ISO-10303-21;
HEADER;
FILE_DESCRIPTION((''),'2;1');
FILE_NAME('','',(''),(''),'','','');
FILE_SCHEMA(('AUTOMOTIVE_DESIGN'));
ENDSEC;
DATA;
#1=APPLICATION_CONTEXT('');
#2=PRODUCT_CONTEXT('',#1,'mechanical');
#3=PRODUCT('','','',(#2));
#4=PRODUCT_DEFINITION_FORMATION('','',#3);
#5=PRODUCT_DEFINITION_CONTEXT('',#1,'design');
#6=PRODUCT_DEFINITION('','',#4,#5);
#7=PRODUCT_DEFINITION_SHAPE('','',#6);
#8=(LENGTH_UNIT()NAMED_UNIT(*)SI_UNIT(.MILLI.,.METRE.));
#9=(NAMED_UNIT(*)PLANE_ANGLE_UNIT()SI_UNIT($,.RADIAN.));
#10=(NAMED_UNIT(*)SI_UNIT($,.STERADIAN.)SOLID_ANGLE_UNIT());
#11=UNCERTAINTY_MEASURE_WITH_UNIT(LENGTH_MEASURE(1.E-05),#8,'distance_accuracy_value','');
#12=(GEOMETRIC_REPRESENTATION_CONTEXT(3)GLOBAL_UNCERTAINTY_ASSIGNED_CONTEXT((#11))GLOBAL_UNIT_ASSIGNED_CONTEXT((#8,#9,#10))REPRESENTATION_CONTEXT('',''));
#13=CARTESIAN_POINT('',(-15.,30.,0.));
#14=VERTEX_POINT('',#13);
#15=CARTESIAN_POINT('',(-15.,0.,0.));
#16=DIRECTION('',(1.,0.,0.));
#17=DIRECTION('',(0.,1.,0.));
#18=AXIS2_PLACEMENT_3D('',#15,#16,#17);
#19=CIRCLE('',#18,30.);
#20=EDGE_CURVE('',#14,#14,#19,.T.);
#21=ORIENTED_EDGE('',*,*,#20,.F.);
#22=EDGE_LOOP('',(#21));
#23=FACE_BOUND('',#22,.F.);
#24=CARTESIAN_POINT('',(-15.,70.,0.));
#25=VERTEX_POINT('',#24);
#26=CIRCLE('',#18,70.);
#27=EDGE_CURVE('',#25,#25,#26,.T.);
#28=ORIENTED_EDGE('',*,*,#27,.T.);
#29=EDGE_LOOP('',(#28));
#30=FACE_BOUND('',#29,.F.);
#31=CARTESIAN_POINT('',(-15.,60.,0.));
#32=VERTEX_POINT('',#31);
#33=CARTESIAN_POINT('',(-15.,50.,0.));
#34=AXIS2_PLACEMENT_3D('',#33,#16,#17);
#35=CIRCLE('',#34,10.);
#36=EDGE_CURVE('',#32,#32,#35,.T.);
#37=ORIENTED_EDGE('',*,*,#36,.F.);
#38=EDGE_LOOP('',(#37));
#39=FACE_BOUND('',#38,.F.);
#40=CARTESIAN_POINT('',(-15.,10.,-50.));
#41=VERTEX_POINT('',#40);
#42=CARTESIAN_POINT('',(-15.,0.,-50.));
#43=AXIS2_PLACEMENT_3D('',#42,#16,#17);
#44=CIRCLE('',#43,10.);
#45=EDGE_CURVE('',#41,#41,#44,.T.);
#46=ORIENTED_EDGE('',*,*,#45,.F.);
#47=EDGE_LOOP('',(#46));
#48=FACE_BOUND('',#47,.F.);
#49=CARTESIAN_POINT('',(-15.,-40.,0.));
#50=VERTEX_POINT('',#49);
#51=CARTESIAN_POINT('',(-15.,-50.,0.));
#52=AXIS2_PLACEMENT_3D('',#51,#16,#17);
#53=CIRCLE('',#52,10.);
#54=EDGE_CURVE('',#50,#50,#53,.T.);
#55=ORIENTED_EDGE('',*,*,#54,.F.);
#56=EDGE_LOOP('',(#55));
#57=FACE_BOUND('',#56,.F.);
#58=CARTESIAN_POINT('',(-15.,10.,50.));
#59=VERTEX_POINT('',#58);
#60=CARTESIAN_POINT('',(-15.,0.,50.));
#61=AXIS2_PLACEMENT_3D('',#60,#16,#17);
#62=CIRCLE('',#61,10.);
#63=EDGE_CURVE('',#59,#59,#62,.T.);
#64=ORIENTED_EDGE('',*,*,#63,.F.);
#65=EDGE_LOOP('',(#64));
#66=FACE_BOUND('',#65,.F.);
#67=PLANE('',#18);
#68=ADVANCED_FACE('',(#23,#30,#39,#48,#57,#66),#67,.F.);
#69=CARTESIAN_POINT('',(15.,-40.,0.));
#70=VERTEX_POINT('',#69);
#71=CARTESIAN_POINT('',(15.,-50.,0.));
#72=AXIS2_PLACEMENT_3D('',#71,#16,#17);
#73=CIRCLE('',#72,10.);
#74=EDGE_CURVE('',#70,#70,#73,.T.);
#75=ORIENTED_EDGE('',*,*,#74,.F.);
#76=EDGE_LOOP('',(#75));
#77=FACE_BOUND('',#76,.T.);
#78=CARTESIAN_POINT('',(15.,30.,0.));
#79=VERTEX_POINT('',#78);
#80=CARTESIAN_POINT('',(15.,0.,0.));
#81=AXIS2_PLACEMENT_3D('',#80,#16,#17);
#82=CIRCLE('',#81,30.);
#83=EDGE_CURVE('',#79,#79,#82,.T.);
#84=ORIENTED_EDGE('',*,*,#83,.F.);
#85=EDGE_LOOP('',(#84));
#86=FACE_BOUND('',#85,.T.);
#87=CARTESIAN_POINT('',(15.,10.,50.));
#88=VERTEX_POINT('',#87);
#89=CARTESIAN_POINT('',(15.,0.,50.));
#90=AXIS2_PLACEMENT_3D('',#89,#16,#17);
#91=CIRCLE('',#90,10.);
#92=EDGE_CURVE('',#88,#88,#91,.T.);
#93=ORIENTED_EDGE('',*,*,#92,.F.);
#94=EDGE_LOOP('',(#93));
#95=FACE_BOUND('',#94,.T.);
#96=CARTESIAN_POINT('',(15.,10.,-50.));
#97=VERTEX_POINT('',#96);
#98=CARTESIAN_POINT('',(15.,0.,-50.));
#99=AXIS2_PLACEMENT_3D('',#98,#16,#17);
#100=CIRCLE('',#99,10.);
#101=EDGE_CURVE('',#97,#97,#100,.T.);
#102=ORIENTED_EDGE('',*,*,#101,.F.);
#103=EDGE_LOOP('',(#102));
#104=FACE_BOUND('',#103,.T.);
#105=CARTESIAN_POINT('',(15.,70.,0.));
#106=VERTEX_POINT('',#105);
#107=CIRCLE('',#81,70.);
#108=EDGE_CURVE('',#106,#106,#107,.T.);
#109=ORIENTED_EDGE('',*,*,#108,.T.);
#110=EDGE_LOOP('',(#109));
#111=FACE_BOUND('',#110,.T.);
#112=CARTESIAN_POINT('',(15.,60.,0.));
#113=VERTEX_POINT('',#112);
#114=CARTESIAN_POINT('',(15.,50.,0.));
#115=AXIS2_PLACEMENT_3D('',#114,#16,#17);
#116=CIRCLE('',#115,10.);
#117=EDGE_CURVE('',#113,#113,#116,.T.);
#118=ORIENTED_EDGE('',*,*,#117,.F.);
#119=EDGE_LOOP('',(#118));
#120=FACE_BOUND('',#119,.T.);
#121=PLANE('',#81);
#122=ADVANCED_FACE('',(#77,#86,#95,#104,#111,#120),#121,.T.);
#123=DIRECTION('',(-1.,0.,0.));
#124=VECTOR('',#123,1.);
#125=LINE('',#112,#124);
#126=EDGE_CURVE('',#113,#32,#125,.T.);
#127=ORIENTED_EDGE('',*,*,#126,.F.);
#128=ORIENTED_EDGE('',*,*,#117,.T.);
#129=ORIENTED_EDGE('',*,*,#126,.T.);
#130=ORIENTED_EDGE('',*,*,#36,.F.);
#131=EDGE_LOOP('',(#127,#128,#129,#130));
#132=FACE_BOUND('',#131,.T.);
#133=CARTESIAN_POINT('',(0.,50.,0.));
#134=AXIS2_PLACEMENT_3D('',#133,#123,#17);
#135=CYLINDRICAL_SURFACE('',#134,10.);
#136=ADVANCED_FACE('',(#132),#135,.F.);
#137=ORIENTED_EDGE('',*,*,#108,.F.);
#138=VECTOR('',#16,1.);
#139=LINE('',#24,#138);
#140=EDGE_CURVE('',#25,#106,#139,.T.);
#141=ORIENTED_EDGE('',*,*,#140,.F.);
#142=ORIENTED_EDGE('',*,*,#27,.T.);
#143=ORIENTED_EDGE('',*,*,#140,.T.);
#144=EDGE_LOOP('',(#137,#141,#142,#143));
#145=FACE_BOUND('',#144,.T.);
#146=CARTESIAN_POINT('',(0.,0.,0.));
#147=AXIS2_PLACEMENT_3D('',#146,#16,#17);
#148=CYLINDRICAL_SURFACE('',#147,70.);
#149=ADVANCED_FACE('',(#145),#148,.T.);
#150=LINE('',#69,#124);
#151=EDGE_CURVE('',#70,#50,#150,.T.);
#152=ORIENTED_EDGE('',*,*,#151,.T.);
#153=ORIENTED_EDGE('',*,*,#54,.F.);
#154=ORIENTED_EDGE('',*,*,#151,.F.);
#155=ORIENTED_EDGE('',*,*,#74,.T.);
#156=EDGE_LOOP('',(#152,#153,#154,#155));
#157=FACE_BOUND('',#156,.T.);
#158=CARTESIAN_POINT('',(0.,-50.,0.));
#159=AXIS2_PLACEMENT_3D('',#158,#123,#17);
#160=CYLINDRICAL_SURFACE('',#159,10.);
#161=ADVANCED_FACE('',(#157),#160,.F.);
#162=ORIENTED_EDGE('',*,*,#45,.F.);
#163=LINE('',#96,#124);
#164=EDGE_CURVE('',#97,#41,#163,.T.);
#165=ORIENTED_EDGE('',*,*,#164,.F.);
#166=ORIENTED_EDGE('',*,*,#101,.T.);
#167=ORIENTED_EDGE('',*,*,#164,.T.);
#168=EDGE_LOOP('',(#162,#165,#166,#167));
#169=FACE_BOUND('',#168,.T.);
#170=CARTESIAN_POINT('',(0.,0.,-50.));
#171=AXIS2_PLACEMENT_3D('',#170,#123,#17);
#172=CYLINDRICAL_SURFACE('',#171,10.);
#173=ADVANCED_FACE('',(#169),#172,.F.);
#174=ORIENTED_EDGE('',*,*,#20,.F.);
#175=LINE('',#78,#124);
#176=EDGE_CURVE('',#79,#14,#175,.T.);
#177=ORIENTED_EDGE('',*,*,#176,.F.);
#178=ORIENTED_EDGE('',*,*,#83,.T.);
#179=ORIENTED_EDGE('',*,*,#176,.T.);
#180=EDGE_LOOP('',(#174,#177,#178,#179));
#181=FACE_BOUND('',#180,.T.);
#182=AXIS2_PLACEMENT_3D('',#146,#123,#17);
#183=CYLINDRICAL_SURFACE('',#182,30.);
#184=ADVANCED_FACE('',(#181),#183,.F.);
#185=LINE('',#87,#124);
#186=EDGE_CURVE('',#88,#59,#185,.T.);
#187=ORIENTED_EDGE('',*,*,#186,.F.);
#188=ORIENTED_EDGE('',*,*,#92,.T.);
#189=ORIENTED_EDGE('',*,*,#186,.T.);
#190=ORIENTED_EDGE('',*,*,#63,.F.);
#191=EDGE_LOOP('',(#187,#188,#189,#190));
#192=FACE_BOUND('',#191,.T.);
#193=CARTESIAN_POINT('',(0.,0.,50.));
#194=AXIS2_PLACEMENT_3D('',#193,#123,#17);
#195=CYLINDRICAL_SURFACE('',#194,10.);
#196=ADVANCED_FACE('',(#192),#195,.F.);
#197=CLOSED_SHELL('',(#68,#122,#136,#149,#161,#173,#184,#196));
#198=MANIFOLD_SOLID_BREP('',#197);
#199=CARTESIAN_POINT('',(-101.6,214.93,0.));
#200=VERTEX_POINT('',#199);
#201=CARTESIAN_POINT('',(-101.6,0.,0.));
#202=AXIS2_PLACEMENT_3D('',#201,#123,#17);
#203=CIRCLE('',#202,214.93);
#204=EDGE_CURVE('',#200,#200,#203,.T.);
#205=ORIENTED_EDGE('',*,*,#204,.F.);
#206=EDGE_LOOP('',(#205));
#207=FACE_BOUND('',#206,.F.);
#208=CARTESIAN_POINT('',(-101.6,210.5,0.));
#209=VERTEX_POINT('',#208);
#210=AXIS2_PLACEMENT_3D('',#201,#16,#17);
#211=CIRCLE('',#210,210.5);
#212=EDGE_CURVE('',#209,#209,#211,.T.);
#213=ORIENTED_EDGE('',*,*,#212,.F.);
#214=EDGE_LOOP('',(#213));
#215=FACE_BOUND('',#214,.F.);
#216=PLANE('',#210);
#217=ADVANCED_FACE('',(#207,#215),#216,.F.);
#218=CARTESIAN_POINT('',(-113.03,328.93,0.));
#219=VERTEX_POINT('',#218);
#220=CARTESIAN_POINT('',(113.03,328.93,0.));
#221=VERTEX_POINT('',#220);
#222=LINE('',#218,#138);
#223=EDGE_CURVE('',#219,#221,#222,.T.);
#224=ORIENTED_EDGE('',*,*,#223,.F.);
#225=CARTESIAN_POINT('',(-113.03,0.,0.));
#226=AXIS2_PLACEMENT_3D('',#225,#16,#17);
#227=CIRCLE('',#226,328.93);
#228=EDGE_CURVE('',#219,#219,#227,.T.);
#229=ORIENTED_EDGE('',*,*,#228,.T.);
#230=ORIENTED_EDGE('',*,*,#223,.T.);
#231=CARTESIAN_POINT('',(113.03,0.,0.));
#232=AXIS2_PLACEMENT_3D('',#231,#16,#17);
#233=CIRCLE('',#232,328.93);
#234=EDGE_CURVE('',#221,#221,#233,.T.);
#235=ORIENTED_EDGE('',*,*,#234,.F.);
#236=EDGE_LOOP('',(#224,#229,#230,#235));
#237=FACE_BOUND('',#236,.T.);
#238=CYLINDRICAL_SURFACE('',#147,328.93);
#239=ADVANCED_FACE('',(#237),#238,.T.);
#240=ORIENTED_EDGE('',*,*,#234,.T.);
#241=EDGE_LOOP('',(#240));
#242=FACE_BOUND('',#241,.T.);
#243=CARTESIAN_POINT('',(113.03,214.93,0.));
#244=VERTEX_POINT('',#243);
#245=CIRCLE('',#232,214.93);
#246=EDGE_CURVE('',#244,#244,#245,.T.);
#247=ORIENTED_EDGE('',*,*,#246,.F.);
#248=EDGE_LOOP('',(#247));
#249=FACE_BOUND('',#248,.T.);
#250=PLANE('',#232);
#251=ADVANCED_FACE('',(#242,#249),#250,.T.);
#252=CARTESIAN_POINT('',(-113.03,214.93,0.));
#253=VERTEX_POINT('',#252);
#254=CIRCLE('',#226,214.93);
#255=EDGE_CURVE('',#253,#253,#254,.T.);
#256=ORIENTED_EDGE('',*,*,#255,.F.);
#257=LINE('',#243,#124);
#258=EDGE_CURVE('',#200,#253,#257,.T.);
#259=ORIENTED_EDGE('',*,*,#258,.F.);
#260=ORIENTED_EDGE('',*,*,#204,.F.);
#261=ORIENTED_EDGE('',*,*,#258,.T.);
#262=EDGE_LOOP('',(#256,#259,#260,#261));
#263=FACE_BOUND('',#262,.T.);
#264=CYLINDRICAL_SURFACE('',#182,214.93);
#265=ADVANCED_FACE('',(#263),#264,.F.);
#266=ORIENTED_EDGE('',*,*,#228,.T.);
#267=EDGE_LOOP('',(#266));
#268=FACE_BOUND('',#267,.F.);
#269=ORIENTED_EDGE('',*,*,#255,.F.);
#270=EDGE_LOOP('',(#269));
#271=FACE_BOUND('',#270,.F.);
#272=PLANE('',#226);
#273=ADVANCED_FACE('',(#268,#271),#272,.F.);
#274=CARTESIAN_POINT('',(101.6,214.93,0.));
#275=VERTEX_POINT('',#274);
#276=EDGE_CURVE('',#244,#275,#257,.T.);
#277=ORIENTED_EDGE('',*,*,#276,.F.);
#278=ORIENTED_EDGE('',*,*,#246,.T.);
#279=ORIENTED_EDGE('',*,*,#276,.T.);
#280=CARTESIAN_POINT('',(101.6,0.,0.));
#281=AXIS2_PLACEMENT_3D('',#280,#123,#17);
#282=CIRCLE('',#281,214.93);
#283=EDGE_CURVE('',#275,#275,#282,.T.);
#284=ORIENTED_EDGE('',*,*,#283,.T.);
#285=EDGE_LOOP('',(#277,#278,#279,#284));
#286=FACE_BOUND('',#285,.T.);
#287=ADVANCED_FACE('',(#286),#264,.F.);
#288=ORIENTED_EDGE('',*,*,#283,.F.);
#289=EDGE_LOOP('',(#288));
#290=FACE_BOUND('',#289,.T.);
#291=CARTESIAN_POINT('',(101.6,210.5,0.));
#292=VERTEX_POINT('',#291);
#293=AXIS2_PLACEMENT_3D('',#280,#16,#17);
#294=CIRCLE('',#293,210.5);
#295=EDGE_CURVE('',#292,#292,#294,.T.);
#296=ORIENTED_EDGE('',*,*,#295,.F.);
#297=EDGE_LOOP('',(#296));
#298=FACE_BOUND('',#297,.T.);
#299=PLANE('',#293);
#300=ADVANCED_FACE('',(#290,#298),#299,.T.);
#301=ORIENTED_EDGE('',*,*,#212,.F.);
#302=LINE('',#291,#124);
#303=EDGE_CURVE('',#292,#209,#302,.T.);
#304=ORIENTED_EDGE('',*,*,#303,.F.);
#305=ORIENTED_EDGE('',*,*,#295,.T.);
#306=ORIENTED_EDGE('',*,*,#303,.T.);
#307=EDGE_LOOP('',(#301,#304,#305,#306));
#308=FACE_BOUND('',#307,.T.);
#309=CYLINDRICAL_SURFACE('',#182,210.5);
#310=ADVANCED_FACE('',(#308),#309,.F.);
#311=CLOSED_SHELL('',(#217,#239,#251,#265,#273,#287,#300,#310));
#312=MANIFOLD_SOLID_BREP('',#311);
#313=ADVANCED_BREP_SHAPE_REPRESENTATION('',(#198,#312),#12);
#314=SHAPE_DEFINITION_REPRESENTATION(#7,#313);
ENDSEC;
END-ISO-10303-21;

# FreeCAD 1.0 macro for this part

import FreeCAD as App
import Part
import Sketcher

doc = App.newDocument("Part")
params = doc.addObject("Spreadsheet::Sheet", "Params")
for row, (alias, value) in enumerate([
    ("sketch1_diameter", "431 mm"),
    ("sketch1_diameter2", "421 mm"),
    ("pad1_length", "203.2 mm"),
    ("sketch2_diameter", "657.86 mm"),
    ("sketch2_diameter2", "429.86 mm"),
    ("pad2_length", "226.06 mm"),
    ("sketch3_diameter", "140 mm"),
    ("sketch3_diameter2", "20 mm"),
    ("sketch3_diameter3", "60 mm"),
    ("pad3_length", "30 mm"),
], start=1):
    params.set(f"A{row}", alias)
    params.set(f"B{row}", "=" + value)
    params.setAlias(f"B{row}", alias)

body = doc.addObject("PartDesign::Body", "Body")

# Sketch on YZ plane
sketch1 = body.newObject("Sketcher::SketchObject", "Sketch")
sketch1.AttachmentSupport = (doc.getObject("YZ_Plane"), [""])
sketch1.MapMode = "FlatFace"
sketch1.addGeometry([
    Part.Circle(App.Vector(0, 0, 0), App.Vector(0, 0, 1), 216),
    Part.Circle(App.Vector(0, 0, 0), App.Vector(0, 0, 1), 210),
], False)
sketch1.addConstraint([
    Sketcher.Constraint("Coincident", 0, 3, -1, 1),
    Sketcher.Constraint("Coincident", 1, 3, -1, 1),
    Sketcher.Constraint("Diameter", 0, 431.0),
    Sketcher.Constraint("Diameter", 1, 421.0),
])
sketch1.setExpression("Constraints[2]", "Params.sketch1_diameter")
sketch1.setExpression("Constraints[3]", "Params.sketch1_diameter2")
pad1 = body.newObject("PartDesign::Pad", "Pad")
pad1.Profile = sketch1
pad1.setExpression("Length", "Params.pad1_length")
pad1.Midplane = True

# Sketch on YZ plane
sketch2 = body.newObject("Sketcher::SketchObject", "Sketch001")
sketch2.AttachmentSupport = (doc.getObject("YZ_Plane"), [""])
sketch2.MapMode = "FlatFace"
sketch2.addGeometry([
    Part.Circle(App.Vector(0, 0, 0), App.Vector(0, 0, 1), 329),
    Part.Circle(App.Vector(0, 0, 0), App.Vector(0, 0, 1), 215),
], False)
sketch2.addConstraint([
    Sketcher.Constraint("Coincident", 0, 3, -1, 1),
    Sketcher.Constraint("Coincident", 1, 3, -1, 1),
    Sketcher.Constraint("Diameter", 0, 657.86),
    Sketcher.Constraint("Diameter", 1, 429.86),
])
sketch2.setExpression("Constraints[2]", "Params.sketch2_diameter")
sketch2.setExpression("Constraints[3]", "Params.sketch2_diameter2")
pad2 = body.newObject("PartDesign::Pad", "Pad001")
pad2.Profile = sketch2
pad2.setExpression("Length", "Params.pad2_length")
pad2.Midplane = True
body2 = doc.addObject("PartDesign::Body", "Body001")

# Sketch on YZ plane
sketch3 = body2.newObject("Sketcher::SketchObject", "Sketch002")
sketch3.AttachmentSupport = (doc.getObject("YZ_Plane001"), [""])
sketch3.MapMode = "FlatFace"
sketch3.addGeometry([
    Part.Circle(App.Vector(0, 0, 0), App.Vector(0, 0, 1), 70),  # 0
    Part.Circle(App.Vector(0, -50, 0), App.Vector(0, 0, 1), 10),  # 1
    Part.Circle(App.Vector(-50, 0, 0), App.Vector(0, 0, 1), 10),  # 2
    Part.Circle(App.Vector(0, 0, 0), App.Vector(0, 0, 1), 30),  # 3
    Part.Circle(App.Vector(50, 0, 0), App.Vector(0, 0, 1), 10),  # 4
    Part.Circle(App.Vector(0, 50, 0), App.Vector(0, 0, 1), 10),  # 5
], False)
sketch3.addConstraint([
    Sketcher.Constraint("Coincident", 0, 3, -1, 1),
    Sketcher.Constraint("Coincident", 3, 3, -1, 1),
    Sketcher.Constraint("Equal", 1, 2),
    Sketcher.Constraint("Equal", 2, 4),
    Sketcher.Constraint("Equal", 4, 5),
    Sketcher.Constraint("Symmetric", 2, 3, 4, 3, -1, 1),
    Sketcher.Constraint("Symmetric", 1, 3, 5, 3, -1, 1),
    Sketcher.Constraint("PointOnObject", 1, 3, -2),
    Sketcher.Constraint("PointOnObject", 2, 3, -1),
    Sketcher.Constraint("Diameter", 0, 140.0),
    Sketcher.Constraint("Diameter", 1, 20.0),
    Sketcher.Constraint("Diameter", 3, 60.0),
    Sketcher.Constraint("DistanceY", 1, 3, -1, 1, 50.0),
    Sketcher.Constraint("DistanceX", 2, 3, -1, 1, 50.0),
])
sketch3.setExpression("Constraints[9]", "Params.sketch3_diameter")
sketch3.setExpression("Constraints[10]", "Params.sketch3_diameter2")
sketch3.setExpression("Constraints[11]", "Params.sketch3_diameter3")
pad3 = body2.newObject("PartDesign::Pad", "Pad002")
pad3.Profile = sketch3
pad3.setExpression("Length", "Params.pad3_length")
pad3.Midplane = True

doc.recompute()
